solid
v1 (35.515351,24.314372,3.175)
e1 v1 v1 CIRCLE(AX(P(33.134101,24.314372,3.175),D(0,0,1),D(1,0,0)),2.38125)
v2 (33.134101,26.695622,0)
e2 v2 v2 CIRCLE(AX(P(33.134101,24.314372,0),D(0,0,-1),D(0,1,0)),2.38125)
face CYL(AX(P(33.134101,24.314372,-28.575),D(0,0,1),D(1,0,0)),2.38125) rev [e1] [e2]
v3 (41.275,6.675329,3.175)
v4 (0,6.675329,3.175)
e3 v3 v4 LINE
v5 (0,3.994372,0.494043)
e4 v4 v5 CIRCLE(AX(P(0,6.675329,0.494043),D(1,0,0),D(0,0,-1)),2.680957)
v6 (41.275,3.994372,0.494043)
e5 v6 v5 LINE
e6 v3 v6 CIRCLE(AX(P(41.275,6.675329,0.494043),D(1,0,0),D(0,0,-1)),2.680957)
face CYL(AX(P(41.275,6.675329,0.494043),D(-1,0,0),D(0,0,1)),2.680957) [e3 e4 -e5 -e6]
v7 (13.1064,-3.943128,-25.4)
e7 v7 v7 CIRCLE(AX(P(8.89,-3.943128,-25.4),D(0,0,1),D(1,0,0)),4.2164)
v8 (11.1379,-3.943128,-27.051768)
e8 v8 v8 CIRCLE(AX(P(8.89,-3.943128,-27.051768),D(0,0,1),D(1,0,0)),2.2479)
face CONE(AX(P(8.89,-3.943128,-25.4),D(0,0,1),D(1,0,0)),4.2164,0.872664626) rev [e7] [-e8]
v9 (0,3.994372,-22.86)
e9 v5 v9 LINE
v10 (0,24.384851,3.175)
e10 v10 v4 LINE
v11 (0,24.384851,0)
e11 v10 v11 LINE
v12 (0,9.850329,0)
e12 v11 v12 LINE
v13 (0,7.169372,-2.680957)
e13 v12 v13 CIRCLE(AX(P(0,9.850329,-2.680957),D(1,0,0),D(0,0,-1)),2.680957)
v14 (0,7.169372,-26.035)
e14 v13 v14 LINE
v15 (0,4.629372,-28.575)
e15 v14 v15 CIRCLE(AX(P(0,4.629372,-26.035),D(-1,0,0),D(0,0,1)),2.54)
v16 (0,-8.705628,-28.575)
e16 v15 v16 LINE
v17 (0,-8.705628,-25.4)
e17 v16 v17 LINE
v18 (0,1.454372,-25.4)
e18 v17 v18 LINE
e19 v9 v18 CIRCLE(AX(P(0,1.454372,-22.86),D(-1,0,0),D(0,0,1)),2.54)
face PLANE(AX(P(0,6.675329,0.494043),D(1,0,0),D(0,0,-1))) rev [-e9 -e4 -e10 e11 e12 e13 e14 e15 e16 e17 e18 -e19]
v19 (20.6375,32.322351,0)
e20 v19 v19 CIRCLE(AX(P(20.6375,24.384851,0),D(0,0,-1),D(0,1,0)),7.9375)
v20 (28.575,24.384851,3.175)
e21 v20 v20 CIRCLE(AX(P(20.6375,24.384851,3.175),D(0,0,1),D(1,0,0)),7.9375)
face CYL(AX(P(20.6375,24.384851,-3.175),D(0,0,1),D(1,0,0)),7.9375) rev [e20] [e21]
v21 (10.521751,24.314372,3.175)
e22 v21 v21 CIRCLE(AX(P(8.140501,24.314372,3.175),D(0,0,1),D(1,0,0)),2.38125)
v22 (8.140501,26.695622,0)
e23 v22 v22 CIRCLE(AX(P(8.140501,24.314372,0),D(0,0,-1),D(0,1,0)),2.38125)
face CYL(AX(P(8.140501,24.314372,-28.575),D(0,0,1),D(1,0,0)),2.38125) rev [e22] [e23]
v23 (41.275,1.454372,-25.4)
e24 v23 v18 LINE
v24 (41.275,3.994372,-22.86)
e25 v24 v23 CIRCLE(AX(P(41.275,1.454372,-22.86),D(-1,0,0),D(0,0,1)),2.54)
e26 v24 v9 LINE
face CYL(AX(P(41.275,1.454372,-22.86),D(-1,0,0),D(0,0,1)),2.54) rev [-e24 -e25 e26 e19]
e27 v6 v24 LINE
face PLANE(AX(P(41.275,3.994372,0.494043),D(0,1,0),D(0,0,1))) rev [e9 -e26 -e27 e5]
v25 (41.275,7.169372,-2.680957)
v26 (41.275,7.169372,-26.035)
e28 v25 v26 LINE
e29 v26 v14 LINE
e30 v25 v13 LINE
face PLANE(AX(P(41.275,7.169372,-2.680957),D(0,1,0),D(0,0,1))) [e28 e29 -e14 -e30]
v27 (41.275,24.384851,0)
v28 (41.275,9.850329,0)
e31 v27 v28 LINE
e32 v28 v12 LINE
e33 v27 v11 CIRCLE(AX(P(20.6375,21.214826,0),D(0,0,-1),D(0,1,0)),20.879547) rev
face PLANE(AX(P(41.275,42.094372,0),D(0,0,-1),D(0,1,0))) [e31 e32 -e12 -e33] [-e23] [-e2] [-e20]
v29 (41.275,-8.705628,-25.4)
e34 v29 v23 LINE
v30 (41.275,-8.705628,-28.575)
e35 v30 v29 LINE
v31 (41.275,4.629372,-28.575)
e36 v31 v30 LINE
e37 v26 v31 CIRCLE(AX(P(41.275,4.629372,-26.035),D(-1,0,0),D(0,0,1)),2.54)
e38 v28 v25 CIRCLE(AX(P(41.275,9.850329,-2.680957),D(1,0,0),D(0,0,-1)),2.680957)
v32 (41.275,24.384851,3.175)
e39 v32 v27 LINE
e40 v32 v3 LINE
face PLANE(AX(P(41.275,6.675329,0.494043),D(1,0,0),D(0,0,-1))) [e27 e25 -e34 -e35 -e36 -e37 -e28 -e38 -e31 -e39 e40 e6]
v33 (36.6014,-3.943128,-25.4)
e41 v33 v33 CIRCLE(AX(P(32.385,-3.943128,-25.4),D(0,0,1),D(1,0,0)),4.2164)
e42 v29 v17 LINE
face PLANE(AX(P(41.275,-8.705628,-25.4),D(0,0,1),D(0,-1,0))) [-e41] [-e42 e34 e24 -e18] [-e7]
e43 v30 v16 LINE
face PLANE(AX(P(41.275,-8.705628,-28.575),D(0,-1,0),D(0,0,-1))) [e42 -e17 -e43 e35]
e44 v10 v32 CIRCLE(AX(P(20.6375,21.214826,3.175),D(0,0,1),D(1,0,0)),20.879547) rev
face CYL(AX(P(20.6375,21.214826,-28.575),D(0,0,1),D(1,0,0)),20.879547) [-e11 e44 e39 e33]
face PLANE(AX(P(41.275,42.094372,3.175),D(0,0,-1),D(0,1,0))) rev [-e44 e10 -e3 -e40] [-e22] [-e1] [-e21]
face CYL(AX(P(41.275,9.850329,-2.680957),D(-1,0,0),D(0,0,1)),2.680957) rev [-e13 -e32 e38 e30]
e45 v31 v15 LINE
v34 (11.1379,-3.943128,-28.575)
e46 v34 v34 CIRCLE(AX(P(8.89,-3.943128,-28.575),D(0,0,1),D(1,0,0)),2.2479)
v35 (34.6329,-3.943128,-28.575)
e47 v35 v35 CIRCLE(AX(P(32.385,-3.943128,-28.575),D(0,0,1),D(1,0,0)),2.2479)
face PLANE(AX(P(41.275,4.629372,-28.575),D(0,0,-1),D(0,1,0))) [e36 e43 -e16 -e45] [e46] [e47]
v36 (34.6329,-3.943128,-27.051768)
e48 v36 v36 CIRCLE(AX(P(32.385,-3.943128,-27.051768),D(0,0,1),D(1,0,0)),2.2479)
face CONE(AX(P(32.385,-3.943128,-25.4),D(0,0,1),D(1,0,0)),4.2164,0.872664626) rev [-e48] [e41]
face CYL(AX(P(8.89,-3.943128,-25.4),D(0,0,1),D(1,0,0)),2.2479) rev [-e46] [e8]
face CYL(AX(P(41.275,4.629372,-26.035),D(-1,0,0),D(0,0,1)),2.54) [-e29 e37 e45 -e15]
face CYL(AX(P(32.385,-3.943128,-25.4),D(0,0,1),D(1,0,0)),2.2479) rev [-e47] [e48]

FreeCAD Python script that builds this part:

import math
import FreeCAD as App
import Part
import Sketcher
Q = App.Units.Quantity

doc = App.newDocument("Part")
body = doc.addObject("PartDesign::Body", "Body")

# Sketch on YZ plane
sketch1 = body.newObject("Sketcher::SketchObject", "Sketch")
sketch1.AttachmentSupport = (doc.getObject("YZ_Plane"), [""])
sketch1.MapMode = "FlatFace"
sketch1.addGeometry(Part.LineSegment(App.Vector(9.9, 0, 0), App.Vector(42.1, 0, 0)), False)
sketch1.addGeometry(Part.LineSegment(App.Vector(42.1, 0, 0), App.Vector(42.1, 3.2, 0)), False)
sketch1.addGeometry(Part.LineSegment(App.Vector(42.1, 3.2, 0), App.Vector(6.7, 3.2, 0)), False)
sketch1.addGeometry(Part.ArcOfCircle(Part.Circle(App.Vector(6.7, 0.5, 0), App.Vector(0, 0, 1), 2.7), math.radians(90), math.radians(180)), False)
sketch1.addGeometry(Part.LineSegment(App.Vector(4, 0.5, 0), App.Vector(4, -22.9, 0)), False)
sketch1.addGeometry(Part.ArcOfCircle(Part.Circle(App.Vector(1.5, -22.9, 0), App.Vector(0, 0, 1), 2.5), math.radians(-90), math.radians(0)), False)
sketch1.addGeometry(Part.LineSegment(App.Vector(1.5, -25.4, 0), App.Vector(-8.7, -25.4, 0)), False)
sketch1.addGeometry(Part.LineSegment(App.Vector(-8.7, -25.4, 0), App.Vector(-8.7, -28.6, 0)), False)
sketch1.addGeometry(Part.LineSegment(App.Vector(-8.7, -28.6, 0), App.Vector(4.6, -28.6, 0)), False)
sketch1.addGeometry(Part.ArcOfCircle(Part.Circle(App.Vector(4.6, -26, 0), App.Vector(0, 0, 1), 2.5), math.radians(-90), math.radians(0)), False)
sketch1.addGeometry(Part.LineSegment(App.Vector(7.2, -26, 0), App.Vector(7.2, -2.7, 0)), False)
sketch1.addGeometry(Part.ArcOfCircle(Part.Circle(App.Vector(9.9, -2.7, 0), App.Vector(0, 0, 1), 2.7), math.radians(90), math.radians(180)), False)
sketch1.addConstraint(Sketcher.Constraint("Coincident", 0, 2, 1, 1))
sketch1.addConstraint(Sketcher.Constraint("Coincident", 1, 2, 2, 1))
sketch1.addConstraint(Sketcher.Constraint("Tangent", 2, 2, 3, 1))
sketch1.addConstraint(Sketcher.Constraint("Tangent", 3, 2, 4, 1))
sketch1.addConstraint(Sketcher.Constraint("Tangent", 4, 2, 5, 2))
sketch1.addConstraint(Sketcher.Constraint("Tangent", 5, 1, 6, 1))
sketch1.addConstraint(Sketcher.Constraint("Coincident", 6, 2, 7, 1))
sketch1.addConstraint(Sketcher.Constraint("Coincident", 7, 2, 8, 1))
sketch1.addConstraint(Sketcher.Constraint("Tangent", 8, 2, 9, 1))
sketch1.addConstraint(Sketcher.Constraint("Tangent", 9, 2, 10, 1))
sketch1.addConstraint(Sketcher.Constraint("Tangent", 10, 2, 11, 2))
sketch1.addConstraint(Sketcher.Constraint("Tangent", 11, 1, 0, 1))
sketch1.addConstraint(Sketcher.Constraint("Horizontal", 0))
sketch1.addConstraint(Sketcher.Constraint("Vertical", 1))
sketch1.addConstraint(Sketcher.Constraint("Horizontal", 2))
sketch1.addConstraint(Sketcher.Constraint("Vertical", 4))
sketch1.addConstraint(Sketcher.Constraint("Horizontal", 6))
sketch1.addConstraint(Sketcher.Constraint("Vertical", 7))
sketch1.addConstraint(Sketcher.Constraint("Horizontal", 8))
sketch1.addConstraint(Sketcher.Constraint("Vertical", 10))
sketch1.addConstraint(Sketcher.Constraint("Equal", 5, 9))
sketch1.addConstraint(Sketcher.Constraint("Equal", 3, 11))
sketch1.addConstraint(Sketcher.Constraint("PointOnObject", 0, 2, -1))
sketch1.addConstraint(Sketcher.Constraint("Equal", 1, 7))
sketch1.addConstraint(Sketcher.Constraint("Radius", 5, Q("0.1 in")))
sketch1.addConstraint(Sketcher.Constraint("DistanceX", 6, 2, 6, 1, Q("0.4 in")))
sketch1.addConstraint(Sketcher.Constraint("DistanceY", 5, 1, -1, 1, Q("1 in")))
sketch1.addConstraint(Sketcher.Constraint("DistanceX", 5, 3, 0, 2, Q("1.6 in")))
sketch1.addConstraint(Sketcher.Constraint("DistanceX", 8, 1, 8, 2, Q("0.525 in")))
sketch1.addConstraint(Sketcher.Constraint("DistanceY", 1, 1, 1, 2, Q("0.125 in")))
sketch1.addConstraint(Sketcher.Constraint("Radius", 3, 2.680957))
sketch1.addConstraint(Sketcher.Constraint("DistanceX", -1, 1, 3, 3, 6.675329))
pad1 = body.newObject("PartDesign::Pad", "Pad")
pad1.Profile = sketch1
pad1.Length = Q("1.625 in")

# Sketch on XY plane
sketch2 = body.newObject("Sketcher::SketchObject", "Sketch001")
sketch2.AttachmentSupport = (doc.getObject("XY_Plane"), [""])
sketch2.MapMode = "FlatFace"
sketch2.AttachmentOffset = App.Placement(App.Vector(0, 0, 0.125 * 25.4), App.Rotation())
sketch2.addGeometry(Part.Circle(App.Vector(21, 24, 0), App.Vector(0, 0, 1), 8), False)
sketch2.addConstraint(Sketcher.Constraint("Diameter", 0, Q("0.625 in")))
sketch2.addConstraint(Sketcher.Constraint("DistanceX", -1, 1, 0, 3, Q("0.8125 in")))
sketch2.addConstraint(Sketcher.Constraint("DistanceY", -1, 1, 0, 3, 24.384851))
pocket1 = body.newObject("PartDesign::Pocket", "Pocket")
pocket1.Profile = sketch2
pocket1.Length = Q("0.25 in")

# Sketch on XY plane
sketch3 = body.newObject("Sketcher::SketchObject", "Sketch002")
sketch3.AttachmentSupport = (doc.getObject("XY_Plane"), [""])
sketch3.MapMode = "FlatFace"
sketch3.AttachmentOffset = App.Placement(App.Vector(0, 0, 0.125 * 25.4), App.Rotation())
sketch3.addGeometry(Part.LineSegment(App.Vector(0, 42.1, 0), App.Vector(0, 24.4, 0)), False)
sketch3.addGeometry(Part.ArcOfCircle(Part.Circle(App.Vector(20.6, 21.2, 0), App.Vector(0, 0, 1), 20.9), math.radians(90), math.radians(171)), False)
sketch3.addGeometry(Part.LineSegment(App.Vector(20.6, 42.1, 0), App.Vector(0, 42.1, 0)), False)
sketch3.addGeometry(Part.LineSegment(App.Vector(41.3, 42.1, 0), App.Vector(20.6, 42.1, 0)), False)
sketch3.addGeometry(Part.ArcOfCircle(Part.Circle(App.Vector(20.6, 21.2, 0), App.Vector(0, 0, 1), 20.9), math.radians(9), math.radians(90)), False)
sketch3.addGeometry(Part.LineSegment(App.Vector(41.3, 24.4, 0), App.Vector(41.3, 42.1, 0)), False)
sketch3.addGeometry(Part.Circle(App.Vector(8.1, 24.3, 0), App.Vector(0, 0, 1), 2.4), False)
sketch3.addGeometry(Part.Circle(App.Vector(33.1, 24.3, 0), App.Vector(0, 0, 1), 2.4), False)
sketch3.addConstraint(Sketcher.Constraint("Coincident", 0, 2, 1, 2))
sketch3.addConstraint(Sketcher.Constraint("Tangent", 1, 1, 2, 1))
sketch3.addConstraint(Sketcher.Constraint("Coincident", 2, 2, 0, 1))
sketch3.addConstraint(Sketcher.Constraint("Tangent", 3, 2, 4, 2))
sketch3.addConstraint(Sketcher.Constraint("Coincident", 4, 1, 5, 1))
sketch3.addConstraint(Sketcher.Constraint("Coincident", 5, 2, 3, 1))
sketch3.addConstraint(Sketcher.Constraint("Vertical", 0))
sketch3.addConstraint(Sketcher.Constraint("Horizontal", 2))
sketch3.addConstraint(Sketcher.Constraint("Horizontal", 3))
sketch3.addConstraint(Sketcher.Constraint("Vertical", 5))
sketch3.addConstraint(Sketcher.Constraint("Coincident", 4, 3, 1, 3))
sketch3.addConstraint(Sketcher.Constraint("Equal", 1, 4))
sketch3.addConstraint(Sketcher.Constraint("Equal", 6, 7))
sketch3.addConstraint(Sketcher.Constraint("PointOnObject", 0, 2, -2))
sketch3.addConstraint(Sketcher.Constraint("Horizontal", 6, 3, 7, 3))
sketch3.addConstraint(Sketcher.Constraint("Horizontal", 0, 2, 4, 1))
sketch3.addConstraint(Sketcher.Constraint("Diameter", 6, Q("0.1875 in")))
sketch3.addConstraint(Sketcher.Constraint("DistanceY", 7, 3, 1, 1, Q("0.7 in")))
sketch3.addConstraint(Sketcher.Constraint("DistanceX", 2, 2, 2, 1, Q("0.8125 in")))
sketch3.addConstraint(Sketcher.Constraint("DistanceX", 6, 3, 7, 3, Q("0.984 in")))
sketch3.addConstraint(Sketcher.Constraint("Radius", 1, 20.879547))
sketch3.addConstraint(Sketcher.Constraint("DistanceX", -1, 1, 6, 3, 8.140501))
sketch3.addConstraint(Sketcher.Constraint("DistanceY", -1, 1, 0, 2, 24.384851))
pocket2 = body.newObject("PartDesign::Pocket", "Pocket001")
pocket2.Profile = sketch3
pocket2.Type = "ThroughAll"

# Sketch on YZ plane
sketch4 = body.newObject("Sketcher::SketchObject", "Sketch003")
sketch4.AttachmentSupport = (doc.getObject("YZ_Plane"), [""])
sketch4.MapMode = "FlatFace"
sketch4.AttachmentOffset = App.Placement(App.Vector(0, 0, 0.35 * 25.4), App.Rotation())
sketch4.addGeometry(Part.LineSegment(App.Vector(-3.9, -28.6, 0), App.Vector(-3.9, -25.4, 0)), False)
sketch4.addGeometry(Part.LineSegment(App.Vector(-3.9, -25.4, 0), App.Vector(-8.2, -25.4, 0)), False)
sketch4.addGeometry(Part.LineSegment(App.Vector(-8.2, -25.4, 0), App.Vector(-6.2, -27.1, 0)), False)
sketch4.addGeometry(Part.LineSegment(App.Vector(-6.2, -27.1, 0), App.Vector(-6.2, -28.6, 0)), False)
sketch4.addGeometry(Part.LineSegment(App.Vector(-6.2, -28.6, 0), App.Vector(-3.9, -28.6, 0)), False)
sketch4.addGeometry(Part.LineSegment(App.Vector(-3.9, -25.4, 0), App.Vector(-3.9, -28.6, 0)), True)  # axis
sketch4.addConstraint(Sketcher.Constraint("Coincident", 0, 2, 1, 1))
sketch4.addConstraint(Sketcher.Constraint("Coincident", 1, 2, 2, 1))
sketch4.addConstraint(Sketcher.Constraint("Coincident", 2, 2, 3, 1))
sketch4.addConstraint(Sketcher.Constraint("Coincident", 3, 2, 4, 1))
sketch4.addConstraint(Sketcher.Constraint("Coincident", 4, 2, 0, 1))
sketch4.addConstraint(Sketcher.Constraint("Vertical", 0))
sketch4.addConstraint(Sketcher.Constraint("Horizontal", 1))
sketch4.addConstraint(Sketcher.Constraint("Vertical", 3))
sketch4.addConstraint(Sketcher.Constraint("Horizontal", 4))
sketch4.addConstraint(Sketcher.Constraint("Vertical", 5))
sketch4.addConstraint(Sketcher.Constraint("Coincident", 5, 1, 0, 2))
sketch4.addConstraint(Sketcher.Constraint("Horizontal", 3, 2, 5, 2))
sketch4.addConstraint(Sketcher.Constraint("DistanceY", 0, 2, -1, 1, Q("1 in")))
sketch4.addConstraint(Sketcher.Constraint("Angle", 2, Q("-40 deg")))
sketch4.addConstraint(Sketcher.Constraint("DistanceX", 1, 2, 1, 1, Q("0.166 in")))
sketch4.addConstraint(Sketcher.Constraint("DistanceY", 0, 1, 0, 2, Q("0.125 in")))
sketch4.addConstraint(Sketcher.Constraint("DistanceX", 4, 1, 4, 2, Q("0.0885 in")))
sketch4.addConstraint(Sketcher.Constraint("DistanceX", 0, 2, -1, 1, 3.943128))
groove = body.newObject("PartDesign::Groove", "Groove")
groove.Profile = sketch4
groove.ReferenceAxis = (sketch4, ["Axis0"])
groove.Angle = 360
doc.recompute()

linearpattern = body.newObject("PartDesign::LinearPattern", "LinearPattern")
linearpattern.Originals = [groove]
linearpattern.Direction = (doc.getObject("X_Axis"), [""])
linearpattern.Mode = "offset"
linearpattern.Offset = Q("0.925 in")
linearpattern.Occurrences = 2
body.Tip = linearpattern

doc.recompute()
